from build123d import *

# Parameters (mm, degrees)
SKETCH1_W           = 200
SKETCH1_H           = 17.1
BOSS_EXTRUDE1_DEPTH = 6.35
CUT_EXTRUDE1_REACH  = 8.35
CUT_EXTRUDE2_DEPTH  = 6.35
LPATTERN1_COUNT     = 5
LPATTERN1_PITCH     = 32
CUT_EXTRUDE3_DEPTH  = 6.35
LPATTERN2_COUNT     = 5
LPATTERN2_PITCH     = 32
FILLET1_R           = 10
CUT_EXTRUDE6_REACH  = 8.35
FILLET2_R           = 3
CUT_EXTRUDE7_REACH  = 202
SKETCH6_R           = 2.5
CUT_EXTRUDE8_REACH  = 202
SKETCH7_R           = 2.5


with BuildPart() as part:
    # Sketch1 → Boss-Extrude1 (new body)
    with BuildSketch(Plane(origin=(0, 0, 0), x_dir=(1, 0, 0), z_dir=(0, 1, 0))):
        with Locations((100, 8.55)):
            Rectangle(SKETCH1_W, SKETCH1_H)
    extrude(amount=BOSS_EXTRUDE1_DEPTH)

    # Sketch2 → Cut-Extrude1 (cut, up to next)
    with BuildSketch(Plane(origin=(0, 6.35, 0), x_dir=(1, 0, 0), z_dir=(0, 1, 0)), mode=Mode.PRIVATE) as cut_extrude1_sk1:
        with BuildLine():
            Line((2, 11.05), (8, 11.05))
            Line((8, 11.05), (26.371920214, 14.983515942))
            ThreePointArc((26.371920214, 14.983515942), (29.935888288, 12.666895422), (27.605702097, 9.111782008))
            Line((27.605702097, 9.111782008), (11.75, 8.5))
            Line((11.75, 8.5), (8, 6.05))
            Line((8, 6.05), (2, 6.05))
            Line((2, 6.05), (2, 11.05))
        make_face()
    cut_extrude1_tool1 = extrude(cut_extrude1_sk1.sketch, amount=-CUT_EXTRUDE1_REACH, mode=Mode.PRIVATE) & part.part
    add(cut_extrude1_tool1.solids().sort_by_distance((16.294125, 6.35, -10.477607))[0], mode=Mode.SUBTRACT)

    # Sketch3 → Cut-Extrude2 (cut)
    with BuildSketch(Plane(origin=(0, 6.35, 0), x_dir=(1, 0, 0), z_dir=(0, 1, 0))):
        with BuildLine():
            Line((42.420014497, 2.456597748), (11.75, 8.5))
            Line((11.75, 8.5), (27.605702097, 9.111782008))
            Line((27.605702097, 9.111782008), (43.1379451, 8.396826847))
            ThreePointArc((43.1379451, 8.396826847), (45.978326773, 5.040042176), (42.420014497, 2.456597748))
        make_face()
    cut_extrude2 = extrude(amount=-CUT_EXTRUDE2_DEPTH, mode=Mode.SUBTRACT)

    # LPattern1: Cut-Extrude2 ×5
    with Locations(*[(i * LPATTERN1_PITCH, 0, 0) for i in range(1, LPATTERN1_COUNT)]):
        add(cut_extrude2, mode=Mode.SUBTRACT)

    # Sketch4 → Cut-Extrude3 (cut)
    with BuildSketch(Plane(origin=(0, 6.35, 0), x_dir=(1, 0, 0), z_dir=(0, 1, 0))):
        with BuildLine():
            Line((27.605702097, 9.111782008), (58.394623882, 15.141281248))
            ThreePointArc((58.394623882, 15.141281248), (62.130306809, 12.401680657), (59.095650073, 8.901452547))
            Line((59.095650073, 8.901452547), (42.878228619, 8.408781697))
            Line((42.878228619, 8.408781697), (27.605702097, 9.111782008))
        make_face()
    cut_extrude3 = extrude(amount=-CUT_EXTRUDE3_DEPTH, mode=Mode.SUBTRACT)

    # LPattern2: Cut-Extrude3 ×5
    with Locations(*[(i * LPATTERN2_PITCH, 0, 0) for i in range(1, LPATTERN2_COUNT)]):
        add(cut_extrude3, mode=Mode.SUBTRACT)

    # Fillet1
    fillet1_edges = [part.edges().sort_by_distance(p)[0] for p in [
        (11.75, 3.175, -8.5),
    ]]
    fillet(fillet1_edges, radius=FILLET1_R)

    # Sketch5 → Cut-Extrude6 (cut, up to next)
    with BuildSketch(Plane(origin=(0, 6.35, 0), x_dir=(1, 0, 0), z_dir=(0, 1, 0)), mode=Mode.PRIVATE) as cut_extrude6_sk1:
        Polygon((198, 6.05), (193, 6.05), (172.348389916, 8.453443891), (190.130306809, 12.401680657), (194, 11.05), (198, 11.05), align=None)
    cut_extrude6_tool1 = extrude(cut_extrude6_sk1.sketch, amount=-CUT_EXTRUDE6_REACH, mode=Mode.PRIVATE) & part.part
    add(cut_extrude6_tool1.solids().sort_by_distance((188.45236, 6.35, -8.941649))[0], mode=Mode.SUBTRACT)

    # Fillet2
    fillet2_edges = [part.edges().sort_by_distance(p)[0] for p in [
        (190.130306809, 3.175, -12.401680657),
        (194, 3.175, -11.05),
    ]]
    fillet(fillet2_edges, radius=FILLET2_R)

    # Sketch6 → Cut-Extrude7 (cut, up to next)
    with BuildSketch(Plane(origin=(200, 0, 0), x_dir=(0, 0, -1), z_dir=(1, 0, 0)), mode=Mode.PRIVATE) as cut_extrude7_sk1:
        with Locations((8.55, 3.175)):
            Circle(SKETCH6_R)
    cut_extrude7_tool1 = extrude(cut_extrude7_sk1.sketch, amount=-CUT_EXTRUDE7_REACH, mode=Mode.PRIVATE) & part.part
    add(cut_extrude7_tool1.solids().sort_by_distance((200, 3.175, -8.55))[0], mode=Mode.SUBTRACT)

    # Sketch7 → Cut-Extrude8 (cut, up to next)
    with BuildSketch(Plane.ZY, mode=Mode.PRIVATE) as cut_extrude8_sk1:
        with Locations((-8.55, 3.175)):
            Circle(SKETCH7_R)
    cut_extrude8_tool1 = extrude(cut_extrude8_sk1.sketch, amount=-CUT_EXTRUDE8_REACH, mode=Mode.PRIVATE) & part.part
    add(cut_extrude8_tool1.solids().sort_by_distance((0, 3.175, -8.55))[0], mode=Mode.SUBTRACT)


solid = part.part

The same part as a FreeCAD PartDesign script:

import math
import FreeCAD as App
import Part
import Sketcher


def edges_at(feature, points):
    """Names of the edges that pass closest to the given points."""
    edges = feature.Shape.Edges
    near = lambda p: min(range(len(edges)), key=lambda i: edges[i].distToShape(Part.Vertex(*p))[0])
    return sorted({f"Edge{near(p) + 1}" for p in points})

doc = App.newDocument("Part")
body = doc.addObject("PartDesign::Body", "Body")

sketch1 = body.newObject("Sketcher::SketchObject", "Sketch")
sketch1.AttachmentSupport = (doc.getObject("XZ_Plane"), [""])
sketch1.MapMode = "FlatFace"
sketch1.addGeometry([
    Part.LineSegment(App.Vector(0, -17.1, 0), App.Vector(0, 0, 0)),
    Part.LineSegment(App.Vector(0, 0, 0), App.Vector(200, 0, 0)),
    Part.LineSegment(App.Vector(200, 0, 0), App.Vector(200, -17.1, 0)),
    Part.LineSegment(App.Vector(200, -17.1, 0), App.Vector(0, -17.1, 0)),
], False)
sketch1.addConstraint([
    Sketcher.Constraint("Coincident", 0, 2, 1, 1),
    Sketcher.Constraint("Coincident", 1, 2, 2, 1),
    Sketcher.Constraint("Coincident", 2, 2, 3, 1),
    Sketcher.Constraint("Coincident", 3, 2, 0, 1),
    Sketcher.Constraint("Vertical", 0),
    Sketcher.Constraint("Horizontal", 1),
    Sketcher.Constraint("Vertical", 2),
    Sketcher.Constraint("Horizontal", 3),
    Sketcher.Constraint("Coincident", 0, 2, -1, 1),
    Sketcher.Constraint("DistanceX", 1, 1, 1, 2, 200.0),
    Sketcher.Constraint("DistanceY", 0, 1, 0, 2, 17.1),
])
pad1 = body.newObject("PartDesign::Pad", "Pad")
pad1.Profile = sketch1
pad1.Length = 6.35
pad1.Reversed = True

sketch2 = body.newObject("Sketcher::SketchObject", "Sketch001")
sketch2.AttachmentSupport = (doc.getObject("XZ_Plane"), [""])
sketch2.MapMode = "FlatFace"
sketch2.AttachmentOffset = App.Placement(App.Vector(0, 0, -6.35), App.Rotation())
sketch2.addGeometry([
    Part.LineSegment(App.Vector(8, -11.05, 0), App.Vector(2, -11.05, 0)),
    Part.LineSegment(App.Vector(2, -11.05, 0), App.Vector(2, -6.05, 0)),
    Part.LineSegment(App.Vector(2, -6.05, 0), App.Vector(8, -6.05, 0)),
    Part.LineSegment(App.Vector(8, -6.05, 0), App.Vector(11.75, -8.5, 0)),
    Part.LineSegment(App.Vector(11.75, -8.5, 0), App.Vector(27.605702, -9.111782, 0)),
    Part.ArcOfCircle(Part.Circle(App.Vector(27, -12.05, 0), App.Vector(0, 0, 1), 3), math.radians(-102.084845), math.radians(78.351871)),
    Part.LineSegment(App.Vector(26.37192, -14.983516, 0), App.Vector(8, -11.05, 0)),
], False)
sketch2.addConstraint([
    Sketcher.Constraint("Coincident", 0, 2, 1, 1),
    Sketcher.Constraint("Coincident", 1, 2, 2, 1),
    Sketcher.Constraint("Coincident", 2, 2, 3, 1),
    Sketcher.Constraint("Coincident", 3, 2, 4, 1),
    Sketcher.Constraint("Coincident", 4, 2, 5, 2),
    Sketcher.Constraint("Tangent", 5, 1, 6, 1),
    Sketcher.Constraint("Coincident", 6, 2, 0, 1),
    Sketcher.Constraint("Horizontal", 0),
    Sketcher.Constraint("Vertical", 1),
    Sketcher.Constraint("Horizontal", 2),
    Sketcher.Constraint("Vertical", 2, 2, 6, 2),
    Sketcher.Constraint("Radius", 5, 3.0),
    Sketcher.Constraint("DistanceX", 0, 2, 0, 1, 6.0),
    Sketcher.Constraint("DistanceY", 1, 1, 1, 2, 5.0),
    Sketcher.Constraint("DistanceX", -1, 1, 5, 3, 27.0),
    Sketcher.Constraint("DistanceX", -1, 1, 0, 2, 2.0),
    Sketcher.Constraint("DistanceY", 5, 3, 0, 2, 1.0),
    Sketcher.Constraint("DistanceY", 3, 2, -1, 1, 8.5),
    Sketcher.Constraint("DistanceY", 5, 3, -1, 1, 12.05),
    Sketcher.Constraint("DistanceX", -1, 1, 3, 2, 11.75),
    Sketcher.Constraint("Distance", 4, 15.8675),
])
pocket1 = body.newObject("PartDesign::Pocket", "Pocket")
pocket1.Profile = sketch2
pocket1.Type = "UpToFirst"
pocket1.Reversed = True

sketch3 = body.newObject("Sketcher::SketchObject", "Sketch002")
sketch3.AttachmentSupport = (doc.getObject("XZ_Plane"), [""])
sketch3.MapMode = "FlatFace"
sketch3.AttachmentOffset = App.Placement(App.Vector(0, 0, -6.35), App.Rotation())
sketch3.addGeometry([
    Part.LineSegment(App.Vector(11.75, -8.5, 0), App.Vector(42.420014, -2.456598, 0)),
    Part.ArcOfCircle(Part.Circle(App.Vector(43, -5.4, 0), App.Vector(0, 0, 1), 3), math.radians(-87.364513), math.radians(101.147096)),
    Part.LineSegment(App.Vector(43.137945, -8.396827, 0), App.Vector(27.605702, -9.111782, 0)),
    Part.LineSegment(App.Vector(27.605702, -9.111782, 0), App.Vector(11.75, -8.5, 0)),
], False)
sketch3.addConstraint([
    Sketcher.Constraint("Tangent", 0, 2, 1, 2),
    Sketcher.Constraint("Tangent", 1, 1, 2, 1),
    Sketcher.Constraint("Coincident", 2, 2, 3, 1),
    Sketcher.Constraint("Coincident", 3, 2, 0, 1),
    Sketcher.Constraint("Radius", 1, 3.0),
    Sketcher.Constraint("DistanceX", -1, 1, 1, 3, 43.0),
    Sketcher.Constraint("DistanceY", 1, 3, -1, 1, 5.4),
    Sketcher.Constraint("DistanceY", 3, 2, -1, 1, 8.5),
    Sketcher.Constraint("DistanceX", -1, 1, 3, 2, 11.75),
    Sketcher.Constraint("Distance", 3, 15.8675),
    Sketcher.Constraint("Distance", 2, 15.548689),
])
pocket2 = body.newObject("PartDesign::Pocket", "Pocket001")
pocket2.Profile = sketch3
pocket2.Length = 6.35
pocket2.Reversed = True
doc.recompute()

linearpattern = body.newObject("PartDesign::LinearPattern", "LinearPattern")
linearpattern.Originals = [pocket2]
linearpattern.Direction = (doc.getObject("X_Axis"), [""])
linearpattern.Mode = "offset"
linearpattern.Offset = 32
linearpattern.Occurrences = 5
body.Tip = linearpattern

sketch4 = body.newObject("Sketcher::SketchObject", "Sketch003")
sketch4.AttachmentSupport = (doc.getObject("XZ_Plane"), [""])
sketch4.MapMode = "FlatFace"
sketch4.AttachmentOffset = App.Placement(App.Vector(0, 0, -6.35), App.Rotation())
sketch4.addGeometry([
    Part.LineSegment(App.Vector(58.394624, -15.141281, 0), App.Vector(27.605702, -9.111782, 0)),
    Part.LineSegment(App.Vector(27.605702, -9.111782, 0), App.Vector(42.878229, -8.408782, 0)),
    Part.LineSegment(App.Vector(42.878229, -8.408782, 0), App.Vector(59.09565, -8.901453, 0)),
    Part.ArcOfCircle(Part.Circle(App.Vector(59, -12.05, 0), App.Vector(0, 0, 1), 3.15), math.radians(-101.080203), math.radians(88.25994)),
], False)
sketch4.addConstraint([
    Sketcher.Constraint("Coincident", 0, 2, 1, 1),
    Sketcher.Constraint("Coincident", 1, 2, 2, 1),
    Sketcher.Constraint("Coincident", 2, 2, 3, 2),
    Sketcher.Constraint("Coincident", 3, 1, 0, 1),
    Sketcher.Constraint("Radius", 3, 3.15),
    Sketcher.Constraint("DistanceX", -1, 1, 3, 3, 59.0),
    Sketcher.Constraint("DistanceY", 3, 3, -1, 1, 12.05),
    Sketcher.Constraint("DistanceY", 0, 2, 1, 2, 0.703),
    Sketcher.Constraint("DistanceY", 3, 1, 1, 2, 6.7325),
    Sketcher.Constraint("DistanceX", -1, 1, 1, 2, 42.878229),
    Sketcher.Constraint("DistanceY", 1, 2, -1, 1, 8.408782),
    Sketcher.Constraint("DistanceX", -1, 1, 2, 2, 59.09565),
    Sketcher.Constraint("DistanceX", 0, 2, 3, 1, 30.788922),
])
pocket3 = body.newObject("PartDesign::Pocket", "Pocket002")
pocket3.Profile = sketch4
pocket3.Length = 6.35
pocket3.Reversed = True
doc.recompute()

linearpattern2 = body.newObject("PartDesign::LinearPattern", "LinearPattern001")
linearpattern2.Originals = [pocket3]
linearpattern2.Direction = (doc.getObject("X_Axis"), [""])
linearpattern2.Mode = "offset"
linearpattern2.Offset = 32
linearpattern2.Occurrences = 5
body.Tip = linearpattern2
doc.recompute()

fillet = body.newObject("PartDesign::Fillet", "Fillet")
fillet.Base = (linearpattern2, edges_at(linearpattern2, [(11.75, 3.175, -8.5)]))
fillet.Radius = 10

sketch5 = body.newObject("Sketcher::SketchObject", "Sketch004")
sketch5.AttachmentSupport = (doc.getObject("XZ_Plane"), [""])
sketch5.MapMode = "FlatFace"
sketch5.AttachmentOffset = App.Placement(App.Vector(0, 0, -6.35), App.Rotation())
sketch5.addGeometry([
    Part.LineSegment(App.Vector(193, -6.05, 0), App.Vector(198, -6.05, 0)),
    Part.LineSegment(App.Vector(198, -6.05, 0), App.Vector(198, -11.05, 0)),
    Part.LineSegment(App.Vector(198, -11.05, 0), App.Vector(194, -11.05, 0)),
    Part.LineSegment(App.Vector(194, -11.05, 0), App.Vector(190.130307, -12.401681, 0)),
    Part.LineSegment(App.Vector(190.130307, -12.401681, 0), App.Vector(172.34839, -8.453444, 0)),
    Part.LineSegment(App.Vector(172.34839, -8.453444, 0), App.Vector(193, -6.05, 0)),
], False)
sketch5.addConstraint([
    Sketcher.Constraint("Coincident", 0, 2, 1, 1),
    Sketcher.Constraint("Coincident", 1, 2, 2, 1),
    Sketcher.Constraint("Coincident", 2, 2, 3, 1),
    Sketcher.Constraint("Coincident", 3, 2, 4, 1),
    Sketcher.Constraint("Coincident", 4, 2, 5, 1),
    Sketcher.Constraint("Coincident", 5, 2, 0, 1),
    Sketcher.Constraint("Horizontal", 0),
    Sketcher.Constraint("Vertical", 1),
    Sketcher.Constraint("Horizontal", 2),
    Sketcher.Constraint("Equal", 0, 1),
    Sketcher.Constraint("DistanceX", 0, 1, 0, 2, 5.0),
    Sketcher.Constraint("DistanceX", 2, 2, 2, 1, 4.0),
    Sketcher.Constraint("DistanceX", -1, 1, 0, 2, 198.0),
    Sketcher.Constraint("DistanceY", 0, 2, -1, 1, 6.05),
    Sketcher.Constraint("Distance", 3, 4.098971),
    Sketcher.Constraint("Distance", 4, 18.21497),
    Sketcher.Constraint("DistanceY", 3, 2, -1, 1, 12.401681),
    Sketcher.Constraint("DistanceX", -1, 1, 4, 2, 172.34839),
])
pocket4 = body.newObject("PartDesign::Pocket", "Pocket003")
pocket4.Profile = sketch5
pocket4.Type = "UpToFirst"
pocket4.Reversed = True
doc.recompute()

fillet2 = body.newObject("PartDesign::Fillet", "Fillet001")
fillet2.Base = (pocket4, edges_at(pocket4, [(190.13, 3.175, -12.402), (194, 3.175, -11.05)]))
fillet2.Radius = 3

sketch6 = body.newObject("Sketcher::SketchObject", "Sketch005")
sketch6.AttachmentSupport = (doc.getObject("YZ_Plane"), [""])
sketch6.MapMode = "FlatFace"
sketch6.AttachmentOffset = App.Placement(App.Vector(0, 0, 200), App.Rotation())
sketch6.addGeometry(Part.Circle(App.Vector(3.175, -8.55, 0), App.Vector(0, 0, 1), 2.5), False)
sketch6.addConstraint([
    Sketcher.Constraint("Diameter", 0, 5.0),
    Sketcher.Constraint("DistanceY", 0, 3, -1, 1, 8.55),
    Sketcher.Constraint("DistanceX", -1, 1, 0, 3, 3.175),
])
pocket5 = body.newObject("PartDesign::Pocket", "Pocket004")
pocket5.Profile = sketch6
pocket5.Type = "UpToFirst"

sketch7 = body.newObject("Sketcher::SketchObject", "Sketch006")
sketch7.AttachmentSupport = (doc.getObject("YZ_Plane"), [""])
sketch7.MapMode = "FlatFace"
sketch7.addGeometry(Part.Circle(App.Vector(3.175, -8.55, 0), App.Vector(0, 0, 1), 2.5), False)
sketch7.addConstraint([
    Sketcher.Constraint("Diameter", 0, 5.0),
    Sketcher.Constraint("DistanceY", 0, 3, -1, 1, 8.55),
    Sketcher.Constraint("DistanceX", -1, 1, 0, 3, 3.175),
])
pocket6 = body.newObject("PartDesign::Pocket", "Pocket005")
pocket6.Profile = sketch7
pocket6.Type = "UpToFirst"
pocket6.Reversed = True

doc.recompute()
